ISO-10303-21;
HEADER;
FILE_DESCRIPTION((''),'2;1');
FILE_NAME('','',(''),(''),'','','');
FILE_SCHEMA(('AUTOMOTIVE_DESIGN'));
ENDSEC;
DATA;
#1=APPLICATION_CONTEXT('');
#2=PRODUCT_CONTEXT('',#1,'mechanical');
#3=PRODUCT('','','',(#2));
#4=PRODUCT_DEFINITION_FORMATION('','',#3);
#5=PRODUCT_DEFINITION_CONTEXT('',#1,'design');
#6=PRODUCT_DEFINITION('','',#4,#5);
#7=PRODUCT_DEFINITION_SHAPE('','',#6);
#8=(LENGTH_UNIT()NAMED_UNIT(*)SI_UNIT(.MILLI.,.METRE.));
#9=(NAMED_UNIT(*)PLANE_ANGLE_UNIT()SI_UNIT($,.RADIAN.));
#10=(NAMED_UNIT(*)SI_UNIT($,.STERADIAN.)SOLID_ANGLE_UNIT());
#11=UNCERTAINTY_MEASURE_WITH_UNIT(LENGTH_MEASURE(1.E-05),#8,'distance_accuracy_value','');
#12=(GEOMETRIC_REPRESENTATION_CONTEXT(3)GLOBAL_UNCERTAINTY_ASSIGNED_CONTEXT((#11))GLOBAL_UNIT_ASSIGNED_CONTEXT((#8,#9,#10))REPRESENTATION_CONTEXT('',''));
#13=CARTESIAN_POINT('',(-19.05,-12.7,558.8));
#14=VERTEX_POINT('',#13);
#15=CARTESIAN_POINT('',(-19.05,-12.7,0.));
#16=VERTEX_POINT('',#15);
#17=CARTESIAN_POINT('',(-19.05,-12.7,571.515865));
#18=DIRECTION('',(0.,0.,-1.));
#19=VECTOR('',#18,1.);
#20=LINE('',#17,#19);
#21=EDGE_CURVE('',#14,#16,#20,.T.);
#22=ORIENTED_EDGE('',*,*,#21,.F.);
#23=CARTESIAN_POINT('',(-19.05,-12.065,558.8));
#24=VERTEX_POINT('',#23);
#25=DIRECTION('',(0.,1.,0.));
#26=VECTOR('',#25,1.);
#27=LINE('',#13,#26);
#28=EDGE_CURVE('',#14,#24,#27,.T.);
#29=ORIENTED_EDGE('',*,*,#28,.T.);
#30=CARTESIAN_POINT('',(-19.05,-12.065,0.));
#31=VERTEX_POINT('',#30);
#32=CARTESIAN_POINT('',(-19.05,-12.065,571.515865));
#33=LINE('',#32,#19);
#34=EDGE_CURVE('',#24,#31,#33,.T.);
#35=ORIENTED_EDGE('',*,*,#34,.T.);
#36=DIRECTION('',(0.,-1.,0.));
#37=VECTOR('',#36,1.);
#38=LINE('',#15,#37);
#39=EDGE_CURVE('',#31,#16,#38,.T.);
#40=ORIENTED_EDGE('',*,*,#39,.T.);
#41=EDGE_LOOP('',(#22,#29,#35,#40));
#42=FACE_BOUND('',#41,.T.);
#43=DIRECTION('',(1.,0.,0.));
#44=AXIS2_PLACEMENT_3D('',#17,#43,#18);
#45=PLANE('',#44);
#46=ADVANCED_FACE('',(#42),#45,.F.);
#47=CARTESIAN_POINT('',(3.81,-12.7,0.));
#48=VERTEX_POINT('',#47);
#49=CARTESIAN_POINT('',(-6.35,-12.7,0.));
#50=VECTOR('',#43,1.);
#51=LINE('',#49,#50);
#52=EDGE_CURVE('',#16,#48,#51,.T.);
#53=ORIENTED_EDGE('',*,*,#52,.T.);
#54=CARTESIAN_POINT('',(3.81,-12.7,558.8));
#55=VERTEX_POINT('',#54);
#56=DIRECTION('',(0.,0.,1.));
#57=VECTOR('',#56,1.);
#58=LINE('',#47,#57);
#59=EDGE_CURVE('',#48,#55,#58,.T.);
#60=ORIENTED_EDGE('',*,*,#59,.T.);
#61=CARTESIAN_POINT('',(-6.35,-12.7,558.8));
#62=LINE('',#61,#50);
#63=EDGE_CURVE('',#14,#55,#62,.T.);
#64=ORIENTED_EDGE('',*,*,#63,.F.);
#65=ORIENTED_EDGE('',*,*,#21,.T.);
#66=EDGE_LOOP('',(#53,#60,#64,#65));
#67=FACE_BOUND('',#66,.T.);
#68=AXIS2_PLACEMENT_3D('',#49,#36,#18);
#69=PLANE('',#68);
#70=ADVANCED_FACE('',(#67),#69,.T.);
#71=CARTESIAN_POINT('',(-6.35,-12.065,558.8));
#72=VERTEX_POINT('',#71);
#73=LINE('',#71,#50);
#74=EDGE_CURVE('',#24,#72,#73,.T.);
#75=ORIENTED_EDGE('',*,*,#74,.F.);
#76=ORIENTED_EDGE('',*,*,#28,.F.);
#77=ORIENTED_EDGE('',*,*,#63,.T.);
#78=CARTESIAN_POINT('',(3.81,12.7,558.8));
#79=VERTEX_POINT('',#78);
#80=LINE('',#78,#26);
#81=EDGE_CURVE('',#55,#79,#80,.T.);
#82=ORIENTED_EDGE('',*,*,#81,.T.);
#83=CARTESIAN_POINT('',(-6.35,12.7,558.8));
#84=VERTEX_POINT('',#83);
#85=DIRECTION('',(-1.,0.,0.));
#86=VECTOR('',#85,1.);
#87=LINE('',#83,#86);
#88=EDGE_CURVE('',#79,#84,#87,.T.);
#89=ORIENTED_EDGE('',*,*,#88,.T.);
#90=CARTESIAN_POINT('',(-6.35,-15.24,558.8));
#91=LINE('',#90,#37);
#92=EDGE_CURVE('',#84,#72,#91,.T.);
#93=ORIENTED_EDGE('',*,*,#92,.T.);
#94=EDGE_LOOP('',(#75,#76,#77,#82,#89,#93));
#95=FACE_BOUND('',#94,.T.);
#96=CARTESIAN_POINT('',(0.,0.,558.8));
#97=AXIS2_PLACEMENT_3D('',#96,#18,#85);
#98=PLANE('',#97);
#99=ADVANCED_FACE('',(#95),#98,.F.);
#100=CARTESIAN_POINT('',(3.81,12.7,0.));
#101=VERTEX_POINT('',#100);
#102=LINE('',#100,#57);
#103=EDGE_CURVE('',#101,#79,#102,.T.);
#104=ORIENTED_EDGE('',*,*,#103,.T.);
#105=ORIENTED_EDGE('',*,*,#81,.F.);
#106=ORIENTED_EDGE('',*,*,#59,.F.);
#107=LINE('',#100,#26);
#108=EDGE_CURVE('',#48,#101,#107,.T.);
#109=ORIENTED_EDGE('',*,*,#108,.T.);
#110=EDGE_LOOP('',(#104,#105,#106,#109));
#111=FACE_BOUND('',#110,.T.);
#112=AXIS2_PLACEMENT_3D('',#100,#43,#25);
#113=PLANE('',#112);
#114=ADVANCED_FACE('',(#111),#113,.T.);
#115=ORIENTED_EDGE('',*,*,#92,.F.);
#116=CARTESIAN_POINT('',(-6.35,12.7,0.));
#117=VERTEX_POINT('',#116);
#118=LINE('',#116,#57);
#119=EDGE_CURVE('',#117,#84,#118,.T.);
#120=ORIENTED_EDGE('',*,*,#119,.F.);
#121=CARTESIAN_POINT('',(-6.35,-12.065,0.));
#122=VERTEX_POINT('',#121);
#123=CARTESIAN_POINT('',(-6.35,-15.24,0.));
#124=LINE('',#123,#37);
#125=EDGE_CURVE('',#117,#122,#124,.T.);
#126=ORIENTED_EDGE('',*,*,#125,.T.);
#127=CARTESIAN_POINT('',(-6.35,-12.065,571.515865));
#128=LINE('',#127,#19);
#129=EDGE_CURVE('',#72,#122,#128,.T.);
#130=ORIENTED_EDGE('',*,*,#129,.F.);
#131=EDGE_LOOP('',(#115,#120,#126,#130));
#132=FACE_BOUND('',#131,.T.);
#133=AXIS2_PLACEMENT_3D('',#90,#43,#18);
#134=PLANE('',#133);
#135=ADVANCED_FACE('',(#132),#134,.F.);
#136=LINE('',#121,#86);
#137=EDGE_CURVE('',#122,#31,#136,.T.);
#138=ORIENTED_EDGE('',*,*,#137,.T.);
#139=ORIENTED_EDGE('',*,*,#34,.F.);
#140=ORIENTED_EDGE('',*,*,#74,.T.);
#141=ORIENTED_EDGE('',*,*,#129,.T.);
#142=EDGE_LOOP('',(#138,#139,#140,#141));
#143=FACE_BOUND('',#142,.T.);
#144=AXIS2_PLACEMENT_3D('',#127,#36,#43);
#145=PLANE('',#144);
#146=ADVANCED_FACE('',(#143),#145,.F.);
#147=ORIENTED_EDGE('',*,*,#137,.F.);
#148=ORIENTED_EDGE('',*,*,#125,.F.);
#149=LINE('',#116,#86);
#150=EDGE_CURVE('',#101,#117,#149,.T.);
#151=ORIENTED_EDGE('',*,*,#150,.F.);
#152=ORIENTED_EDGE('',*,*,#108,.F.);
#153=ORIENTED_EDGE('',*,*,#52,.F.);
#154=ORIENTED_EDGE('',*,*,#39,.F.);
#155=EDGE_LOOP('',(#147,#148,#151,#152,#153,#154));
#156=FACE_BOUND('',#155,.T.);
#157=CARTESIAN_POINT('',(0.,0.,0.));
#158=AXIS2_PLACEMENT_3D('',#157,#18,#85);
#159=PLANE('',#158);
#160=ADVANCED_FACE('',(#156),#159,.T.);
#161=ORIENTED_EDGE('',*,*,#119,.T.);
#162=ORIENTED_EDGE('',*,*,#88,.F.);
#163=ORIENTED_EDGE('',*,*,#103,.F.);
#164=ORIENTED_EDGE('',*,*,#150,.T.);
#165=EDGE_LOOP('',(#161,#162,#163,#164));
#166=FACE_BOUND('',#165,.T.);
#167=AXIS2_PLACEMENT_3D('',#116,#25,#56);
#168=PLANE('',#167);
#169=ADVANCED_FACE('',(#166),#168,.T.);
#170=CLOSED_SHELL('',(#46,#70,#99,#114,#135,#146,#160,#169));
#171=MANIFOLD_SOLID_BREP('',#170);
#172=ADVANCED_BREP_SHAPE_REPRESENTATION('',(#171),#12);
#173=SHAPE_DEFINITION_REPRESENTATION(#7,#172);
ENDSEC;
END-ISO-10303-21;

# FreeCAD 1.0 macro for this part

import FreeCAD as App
import Part
import Sketcher

V = App.Vector
Q = App.Units.Quantity

doc = App.newDocument("Part")
body = doc.addObject("PartDesign::Body", "Body")

# Sketch on XY plane
sketch1 = body.newObject("Sketcher::SketchObject", "Sketch")
sketch1.AttachmentSupport = (doc.getObject("XY_Plane"), [""])
sketch1.MapMode = "FlatFace"
sketch1.addGeometry(Part.LineSegment(V(-6, 15, 0), V(-6, -15, 0)), False)
sketch1.addGeometry(Part.LineSegment(V(-6, -15, 0), V(6, -15, 0)), False)
sketch1.addGeometry(Part.LineSegment(V(6, -15, 0), V(6, 15, 0)), False)
sketch1.addGeometry(Part.LineSegment(V(6, 15, 0), V(-6, 15, 0)), False)
sketch1.addConstraint(Sketcher.Constraint("Coincident", 0, 2, 1, 1))
sketch1.addConstraint(Sketcher.Constraint("Coincident", 1, 2, 2, 1))
sketch1.addConstraint(Sketcher.Constraint("Coincident", 2, 2, 3, 1))
sketch1.addConstraint(Sketcher.Constraint("Coincident", 3, 2, 0, 1))
sketch1.addConstraint(Sketcher.Constraint("Vertical", 0))
sketch1.addConstraint(Sketcher.Constraint("Horizontal", 1))
sketch1.addConstraint(Sketcher.Constraint("Vertical", 2))
sketch1.addConstraint(Sketcher.Constraint("Horizontal", 3))
sketch1.addConstraint(Sketcher.Constraint("Symmetric", 0, 2, 2, 2, -1, 1))
sketch1.addConstraint(Sketcher.Constraint("DistanceX", 1, 1, 1, 2, Q("0.5 in")))
sketch1.addConstraint(Sketcher.Constraint("DistanceY", 0, 2, 0, 1, Q("1.2 in")))
pad1 = body.newObject("PartDesign::Pad", "Pad")
pad1.Profile = sketch1
pad1.Length = Q("22 in")

# Sketch on XY plane
sketch2 = body.newObject("Sketcher::SketchObject", "Sketch001")
sketch2.AttachmentSupport = (doc.getObject("XY_Plane"), [""])
sketch2.MapMode = "FlatFace"
sketch2.AttachmentOffset = App.Placement(V(0, 0, 22 * 25.4), App.Rotation())
sketch2.addGeometry(Part.LineSegment(V(-63, 72, 0), V(-63, -72, 0)), False)
sketch2.addGeometry(Part.LineSegment(V(-63, -72, 0), V(63, -72, 0)), False)
sketch2.addGeometry(Part.LineSegment(V(63, -72, 0), V(63, 72, 0)), False)
sketch2.addGeometry(Part.LineSegment(V(63, 72, 0), V(-63, 72, 0)), False)
sketch2.addGeometry(Part.LineSegment(V(4, -13, 0), V(-6, -13, 0)), False)
sketch2.addGeometry(Part.LineSegment(V(-6, -13, 0), V(-6, 13, 0)), False)
sketch2.addGeometry(Part.LineSegment(V(-6, 13, 0), V(4, 13, 0)), False)
sketch2.addGeometry(Part.LineSegment(V(4, 13, 0), V(4, -13, 0)), False)
sketch2.addConstraint(Sketcher.Constraint("Coincident", 0, 2, 1, 1))
sketch2.addConstraint(Sketcher.Constraint("Coincident", 1, 2, 2, 1))
sketch2.addConstraint(Sketcher.Constraint("Coincident", 2, 2, 3, 1))
sketch2.addConstraint(Sketcher.Constraint("Coincident", 3, 2, 0, 1))
sketch2.addConstraint(Sketcher.Constraint("Coincident", 4, 2, 5, 1))
sketch2.addConstraint(Sketcher.Constraint("Coincident", 5, 2, 6, 1))
sketch2.addConstraint(Sketcher.Constraint("Coincident", 6, 2, 7, 1))
sketch2.addConstraint(Sketcher.Constraint("Coincident", 7, 2, 4, 1))
sketch2.addConstraint(Sketcher.Constraint("Vertical", 0))
sketch2.addConstraint(Sketcher.Constraint("Horizontal", 1))
sketch2.addConstraint(Sketcher.Constraint("Vertical", 2))
sketch2.addConstraint(Sketcher.Constraint("Horizontal", 3))
sketch2.addConstraint(Sketcher.Constraint("Horizontal", 4))
sketch2.addConstraint(Sketcher.Constraint("Vertical", 5))
sketch2.addConstraint(Sketcher.Constraint("Horizontal", 6))
sketch2.addConstraint(Sketcher.Constraint("Vertical", 7))
sketch2.addConstraint(Sketcher.Constraint("Symmetric", 0, 2, 2, 2, -1, 1))
sketch2.addConstraint(Sketcher.Constraint("DistanceY", 5, 1, 5, 2, Q("1 in")))
sketch2.addConstraint(Sketcher.Constraint("DistanceX", 4, 2, 4, 1, Q("0.4 in")))
sketch2.addConstraint(Sketcher.Constraint("DistanceY", 4, 2, -1, 1, Q("0.5 in")))
sketch2.addConstraint(Sketcher.Constraint("DistanceX", 4, 2, -1, 1, Q("0.25 in")))
sketch2.addConstraint(Sketcher.Constraint("DistanceX", 1, 1, 1, 2, 126.654))
sketch2.addConstraint(Sketcher.Constraint("DistanceY", 0, 2, 0, 1, 144.434))
pocket1 = body.newObject("PartDesign::Pocket", "Pocket")
pocket1.Profile = sketch2
pocket1.Type = "ThroughAll"

# Sketch on XY plane
sketch3 = body.newObject("Sketcher::SketchObject", "Sketch002")
sketch3.AttachmentSupport = (doc.getObject("XY_Plane"), [""])
sketch3.MapMode = "FlatFace"
sketch3.addGeometry(Part.LineSegment(V(-19.1, -12.1, 0), V(-19.1, -12.7, 0)), False)
sketch3.addGeometry(Part.LineSegment(V(-19.1, -12.7, 0), V(-6.3, -12.7, 0)), False)
sketch3.addGeometry(Part.LineSegment(V(-6.3, -12.7, 0), V(-6.3, -12.1, 0)), False)
sketch3.addGeometry(Part.LineSegment(V(-6.3, -12.1, 0), V(-19.1, -12.1, 0)), False)
sketch3.addConstraint(Sketcher.Constraint("Coincident", 0, 2, 1, 1))
sketch3.addConstraint(Sketcher.Constraint("Coincident", 1, 2, 2, 1))
sketch3.addConstraint(Sketcher.Constraint("Coincident", 2, 2, 3, 1))
sketch3.addConstraint(Sketcher.Constraint("Coincident", 3, 2, 0, 1))
sketch3.addConstraint(Sketcher.Constraint("Vertical", 0))
sketch3.addConstraint(Sketcher.Constraint("Horizontal", 1))
sketch3.addConstraint(Sketcher.Constraint("Vertical", 2))
sketch3.addConstraint(Sketcher.Constraint("Horizontal", 3))
sketch3.addConstraint(Sketcher.Constraint("DistanceX", 1, 1, 1, 2, Q("0.5 in")))
sketch3.addConstraint(Sketcher.Constraint("DistanceY", 0, 2, -1, 1, Q("0.5 in")))
sketch3.addConstraint(Sketcher.Constraint("DistanceY", 0, 2, 0, 1, Q("0.025 in")))
sketch3.addConstraint(Sketcher.Constraint("DistanceX", 0, 2, -1, 1, Q("0.75 in")))
pad2 = body.newObject("PartDesign::Pad", "Pad001")
pad2.Profile = sketch3
pad2.Length = Q("22 in")

doc.recompute()
